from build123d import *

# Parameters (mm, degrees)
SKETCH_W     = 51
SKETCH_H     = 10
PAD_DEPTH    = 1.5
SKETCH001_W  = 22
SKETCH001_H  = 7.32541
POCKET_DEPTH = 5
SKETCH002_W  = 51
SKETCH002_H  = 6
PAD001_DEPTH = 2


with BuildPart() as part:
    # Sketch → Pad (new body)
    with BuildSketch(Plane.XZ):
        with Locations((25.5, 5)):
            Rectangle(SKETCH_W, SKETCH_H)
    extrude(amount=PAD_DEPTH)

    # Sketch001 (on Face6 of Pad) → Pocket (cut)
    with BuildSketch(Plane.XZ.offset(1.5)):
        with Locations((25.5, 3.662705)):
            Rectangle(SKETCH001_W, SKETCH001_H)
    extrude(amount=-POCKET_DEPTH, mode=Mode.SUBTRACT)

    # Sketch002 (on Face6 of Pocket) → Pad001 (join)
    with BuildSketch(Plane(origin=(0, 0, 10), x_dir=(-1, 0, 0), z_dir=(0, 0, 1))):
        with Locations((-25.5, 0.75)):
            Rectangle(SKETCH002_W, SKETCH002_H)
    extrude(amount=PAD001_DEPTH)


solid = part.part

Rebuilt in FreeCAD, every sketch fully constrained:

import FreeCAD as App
import Part
import Sketcher


def add_polygon(sketch, points):
    """Adds a closed chain of lines whose ends are joined by coincident constraints."""
    first, n = sketch.GeometryCount, len(points)
    for a, b in zip(points, points[1:] + points[:1]):
        sketch.addGeometry(Part.LineSegment(App.Vector(*a, 0), App.Vector(*b, 0)), False)
    for i in range(n):
        sketch.addConstraint(Sketcher.Constraint("Coincident", first + i, 2, first + (i + 1) % n, 1))

doc = App.newDocument("Part")
body = doc.addObject("PartDesign::Body", "Body")

sketch1 = doc.addObject("Sketcher::SketchObject", "Sketch")
body.addObject(sketch1)
sketch1.AttachmentSupport = (doc.XZ_Plane, [""])
sketch1.MapMode = "FlatFace"
add_polygon(sketch1, [(0, 10), (0, 0), (51, 0), (51, 10)])
sketch1.addConstraint(Sketcher.Constraint("Vertical", 0))
sketch1.addConstraint(Sketcher.Constraint("Horizontal", 1))
sketch1.addConstraint(Sketcher.Constraint("Vertical", 2))
sketch1.addConstraint(Sketcher.Constraint("Horizontal", 3))
sketch1.addConstraint(Sketcher.Constraint("Coincident", 0, 2, -1, 1))
sketch1.addConstraint(Sketcher.Constraint("DistanceX", 1, 1, 1, 2, 51.0))
sketch1.addConstraint(Sketcher.Constraint("DistanceY", 0, 2, 0, 1, 10.0))
pad1 = doc.addObject("PartDesign::Pad", "Pad")
body.addObject(pad1)
pad1.Profile = sketch1
pad1.Length = 1.5

sketch2 = doc.addObject("Sketcher::SketchObject", "Sketch001")
body.addObject(sketch2)
sketch2.AttachmentSupport = (doc.XZ_Plane, [""])
sketch2.MapMode = "FlatFace"
sketch2.AttachmentOffset = App.Placement(App.Vector(0, 0, 1.5), App.Rotation())
add_polygon(sketch2, [(14.5, 7.32541), (14.5, 0), (36.5, 0), (36.5, 7.32541)])
sketch2.addConstraint(Sketcher.Constraint("Vertical", 0))
sketch2.addConstraint(Sketcher.Constraint("Horizontal", 1))
sketch2.addConstraint(Sketcher.Constraint("Vertical", 2))
sketch2.addConstraint(Sketcher.Constraint("Horizontal", 3))
sketch2.addConstraint(Sketcher.Constraint("PointOnObject", 0, 2, -1))
sketch2.addConstraint(Sketcher.Constraint("DistanceX", 1, 1, 1, 2, 22.0))
sketch2.addConstraint(Sketcher.Constraint("DistanceX", -1, 1, 0, 2, 14.5))
sketch2.addConstraint(Sketcher.Constraint("DistanceY", 0, 2, 0, 1, 7.32541))
pocket1 = doc.addObject("PartDesign::Pocket", "Pocket")
body.addObject(pocket1)
pocket1.Profile = sketch2
pocket1.Length = 5

sketch3 = doc.addObject("Sketcher::SketchObject", "Sketch002")
body.addObject(sketch3)
sketch3.AttachmentSupport = (doc.XY_Plane, [""])
sketch3.MapMode = "FlatFace"
sketch3.AttachmentOffset = App.Placement(App.Vector(0, 0, 10), App.Rotation())
add_polygon(sketch3, [(51, -3.75), (51, 2.25), (0, 2.25), (0, -3.75)])
sketch3.addConstraint(Sketcher.Constraint("Vertical", 0))
sketch3.addConstraint(Sketcher.Constraint("Horizontal", 1))
sketch3.addConstraint(Sketcher.Constraint("Vertical", 2))
sketch3.addConstraint(Sketcher.Constraint("Horizontal", 3))
sketch3.addConstraint(Sketcher.Constraint("PointOnObject", 1, 2, -2))
sketch3.addConstraint(Sketcher.Constraint("DistanceX", 1, 2, 1, 1, 51.0))
sketch3.addConstraint(Sketcher.Constraint("DistanceY", 0, 1, 0, 2, 6.0))
sketch3.addConstraint(Sketcher.Constraint("DistanceY", -1, 1, 0, 2, 2.25))
pad2 = doc.addObject("PartDesign::Pad", "Pad001")
body.addObject(pad2)
pad2.Profile = sketch3
pad2.Length = 2

doc.recompute()
